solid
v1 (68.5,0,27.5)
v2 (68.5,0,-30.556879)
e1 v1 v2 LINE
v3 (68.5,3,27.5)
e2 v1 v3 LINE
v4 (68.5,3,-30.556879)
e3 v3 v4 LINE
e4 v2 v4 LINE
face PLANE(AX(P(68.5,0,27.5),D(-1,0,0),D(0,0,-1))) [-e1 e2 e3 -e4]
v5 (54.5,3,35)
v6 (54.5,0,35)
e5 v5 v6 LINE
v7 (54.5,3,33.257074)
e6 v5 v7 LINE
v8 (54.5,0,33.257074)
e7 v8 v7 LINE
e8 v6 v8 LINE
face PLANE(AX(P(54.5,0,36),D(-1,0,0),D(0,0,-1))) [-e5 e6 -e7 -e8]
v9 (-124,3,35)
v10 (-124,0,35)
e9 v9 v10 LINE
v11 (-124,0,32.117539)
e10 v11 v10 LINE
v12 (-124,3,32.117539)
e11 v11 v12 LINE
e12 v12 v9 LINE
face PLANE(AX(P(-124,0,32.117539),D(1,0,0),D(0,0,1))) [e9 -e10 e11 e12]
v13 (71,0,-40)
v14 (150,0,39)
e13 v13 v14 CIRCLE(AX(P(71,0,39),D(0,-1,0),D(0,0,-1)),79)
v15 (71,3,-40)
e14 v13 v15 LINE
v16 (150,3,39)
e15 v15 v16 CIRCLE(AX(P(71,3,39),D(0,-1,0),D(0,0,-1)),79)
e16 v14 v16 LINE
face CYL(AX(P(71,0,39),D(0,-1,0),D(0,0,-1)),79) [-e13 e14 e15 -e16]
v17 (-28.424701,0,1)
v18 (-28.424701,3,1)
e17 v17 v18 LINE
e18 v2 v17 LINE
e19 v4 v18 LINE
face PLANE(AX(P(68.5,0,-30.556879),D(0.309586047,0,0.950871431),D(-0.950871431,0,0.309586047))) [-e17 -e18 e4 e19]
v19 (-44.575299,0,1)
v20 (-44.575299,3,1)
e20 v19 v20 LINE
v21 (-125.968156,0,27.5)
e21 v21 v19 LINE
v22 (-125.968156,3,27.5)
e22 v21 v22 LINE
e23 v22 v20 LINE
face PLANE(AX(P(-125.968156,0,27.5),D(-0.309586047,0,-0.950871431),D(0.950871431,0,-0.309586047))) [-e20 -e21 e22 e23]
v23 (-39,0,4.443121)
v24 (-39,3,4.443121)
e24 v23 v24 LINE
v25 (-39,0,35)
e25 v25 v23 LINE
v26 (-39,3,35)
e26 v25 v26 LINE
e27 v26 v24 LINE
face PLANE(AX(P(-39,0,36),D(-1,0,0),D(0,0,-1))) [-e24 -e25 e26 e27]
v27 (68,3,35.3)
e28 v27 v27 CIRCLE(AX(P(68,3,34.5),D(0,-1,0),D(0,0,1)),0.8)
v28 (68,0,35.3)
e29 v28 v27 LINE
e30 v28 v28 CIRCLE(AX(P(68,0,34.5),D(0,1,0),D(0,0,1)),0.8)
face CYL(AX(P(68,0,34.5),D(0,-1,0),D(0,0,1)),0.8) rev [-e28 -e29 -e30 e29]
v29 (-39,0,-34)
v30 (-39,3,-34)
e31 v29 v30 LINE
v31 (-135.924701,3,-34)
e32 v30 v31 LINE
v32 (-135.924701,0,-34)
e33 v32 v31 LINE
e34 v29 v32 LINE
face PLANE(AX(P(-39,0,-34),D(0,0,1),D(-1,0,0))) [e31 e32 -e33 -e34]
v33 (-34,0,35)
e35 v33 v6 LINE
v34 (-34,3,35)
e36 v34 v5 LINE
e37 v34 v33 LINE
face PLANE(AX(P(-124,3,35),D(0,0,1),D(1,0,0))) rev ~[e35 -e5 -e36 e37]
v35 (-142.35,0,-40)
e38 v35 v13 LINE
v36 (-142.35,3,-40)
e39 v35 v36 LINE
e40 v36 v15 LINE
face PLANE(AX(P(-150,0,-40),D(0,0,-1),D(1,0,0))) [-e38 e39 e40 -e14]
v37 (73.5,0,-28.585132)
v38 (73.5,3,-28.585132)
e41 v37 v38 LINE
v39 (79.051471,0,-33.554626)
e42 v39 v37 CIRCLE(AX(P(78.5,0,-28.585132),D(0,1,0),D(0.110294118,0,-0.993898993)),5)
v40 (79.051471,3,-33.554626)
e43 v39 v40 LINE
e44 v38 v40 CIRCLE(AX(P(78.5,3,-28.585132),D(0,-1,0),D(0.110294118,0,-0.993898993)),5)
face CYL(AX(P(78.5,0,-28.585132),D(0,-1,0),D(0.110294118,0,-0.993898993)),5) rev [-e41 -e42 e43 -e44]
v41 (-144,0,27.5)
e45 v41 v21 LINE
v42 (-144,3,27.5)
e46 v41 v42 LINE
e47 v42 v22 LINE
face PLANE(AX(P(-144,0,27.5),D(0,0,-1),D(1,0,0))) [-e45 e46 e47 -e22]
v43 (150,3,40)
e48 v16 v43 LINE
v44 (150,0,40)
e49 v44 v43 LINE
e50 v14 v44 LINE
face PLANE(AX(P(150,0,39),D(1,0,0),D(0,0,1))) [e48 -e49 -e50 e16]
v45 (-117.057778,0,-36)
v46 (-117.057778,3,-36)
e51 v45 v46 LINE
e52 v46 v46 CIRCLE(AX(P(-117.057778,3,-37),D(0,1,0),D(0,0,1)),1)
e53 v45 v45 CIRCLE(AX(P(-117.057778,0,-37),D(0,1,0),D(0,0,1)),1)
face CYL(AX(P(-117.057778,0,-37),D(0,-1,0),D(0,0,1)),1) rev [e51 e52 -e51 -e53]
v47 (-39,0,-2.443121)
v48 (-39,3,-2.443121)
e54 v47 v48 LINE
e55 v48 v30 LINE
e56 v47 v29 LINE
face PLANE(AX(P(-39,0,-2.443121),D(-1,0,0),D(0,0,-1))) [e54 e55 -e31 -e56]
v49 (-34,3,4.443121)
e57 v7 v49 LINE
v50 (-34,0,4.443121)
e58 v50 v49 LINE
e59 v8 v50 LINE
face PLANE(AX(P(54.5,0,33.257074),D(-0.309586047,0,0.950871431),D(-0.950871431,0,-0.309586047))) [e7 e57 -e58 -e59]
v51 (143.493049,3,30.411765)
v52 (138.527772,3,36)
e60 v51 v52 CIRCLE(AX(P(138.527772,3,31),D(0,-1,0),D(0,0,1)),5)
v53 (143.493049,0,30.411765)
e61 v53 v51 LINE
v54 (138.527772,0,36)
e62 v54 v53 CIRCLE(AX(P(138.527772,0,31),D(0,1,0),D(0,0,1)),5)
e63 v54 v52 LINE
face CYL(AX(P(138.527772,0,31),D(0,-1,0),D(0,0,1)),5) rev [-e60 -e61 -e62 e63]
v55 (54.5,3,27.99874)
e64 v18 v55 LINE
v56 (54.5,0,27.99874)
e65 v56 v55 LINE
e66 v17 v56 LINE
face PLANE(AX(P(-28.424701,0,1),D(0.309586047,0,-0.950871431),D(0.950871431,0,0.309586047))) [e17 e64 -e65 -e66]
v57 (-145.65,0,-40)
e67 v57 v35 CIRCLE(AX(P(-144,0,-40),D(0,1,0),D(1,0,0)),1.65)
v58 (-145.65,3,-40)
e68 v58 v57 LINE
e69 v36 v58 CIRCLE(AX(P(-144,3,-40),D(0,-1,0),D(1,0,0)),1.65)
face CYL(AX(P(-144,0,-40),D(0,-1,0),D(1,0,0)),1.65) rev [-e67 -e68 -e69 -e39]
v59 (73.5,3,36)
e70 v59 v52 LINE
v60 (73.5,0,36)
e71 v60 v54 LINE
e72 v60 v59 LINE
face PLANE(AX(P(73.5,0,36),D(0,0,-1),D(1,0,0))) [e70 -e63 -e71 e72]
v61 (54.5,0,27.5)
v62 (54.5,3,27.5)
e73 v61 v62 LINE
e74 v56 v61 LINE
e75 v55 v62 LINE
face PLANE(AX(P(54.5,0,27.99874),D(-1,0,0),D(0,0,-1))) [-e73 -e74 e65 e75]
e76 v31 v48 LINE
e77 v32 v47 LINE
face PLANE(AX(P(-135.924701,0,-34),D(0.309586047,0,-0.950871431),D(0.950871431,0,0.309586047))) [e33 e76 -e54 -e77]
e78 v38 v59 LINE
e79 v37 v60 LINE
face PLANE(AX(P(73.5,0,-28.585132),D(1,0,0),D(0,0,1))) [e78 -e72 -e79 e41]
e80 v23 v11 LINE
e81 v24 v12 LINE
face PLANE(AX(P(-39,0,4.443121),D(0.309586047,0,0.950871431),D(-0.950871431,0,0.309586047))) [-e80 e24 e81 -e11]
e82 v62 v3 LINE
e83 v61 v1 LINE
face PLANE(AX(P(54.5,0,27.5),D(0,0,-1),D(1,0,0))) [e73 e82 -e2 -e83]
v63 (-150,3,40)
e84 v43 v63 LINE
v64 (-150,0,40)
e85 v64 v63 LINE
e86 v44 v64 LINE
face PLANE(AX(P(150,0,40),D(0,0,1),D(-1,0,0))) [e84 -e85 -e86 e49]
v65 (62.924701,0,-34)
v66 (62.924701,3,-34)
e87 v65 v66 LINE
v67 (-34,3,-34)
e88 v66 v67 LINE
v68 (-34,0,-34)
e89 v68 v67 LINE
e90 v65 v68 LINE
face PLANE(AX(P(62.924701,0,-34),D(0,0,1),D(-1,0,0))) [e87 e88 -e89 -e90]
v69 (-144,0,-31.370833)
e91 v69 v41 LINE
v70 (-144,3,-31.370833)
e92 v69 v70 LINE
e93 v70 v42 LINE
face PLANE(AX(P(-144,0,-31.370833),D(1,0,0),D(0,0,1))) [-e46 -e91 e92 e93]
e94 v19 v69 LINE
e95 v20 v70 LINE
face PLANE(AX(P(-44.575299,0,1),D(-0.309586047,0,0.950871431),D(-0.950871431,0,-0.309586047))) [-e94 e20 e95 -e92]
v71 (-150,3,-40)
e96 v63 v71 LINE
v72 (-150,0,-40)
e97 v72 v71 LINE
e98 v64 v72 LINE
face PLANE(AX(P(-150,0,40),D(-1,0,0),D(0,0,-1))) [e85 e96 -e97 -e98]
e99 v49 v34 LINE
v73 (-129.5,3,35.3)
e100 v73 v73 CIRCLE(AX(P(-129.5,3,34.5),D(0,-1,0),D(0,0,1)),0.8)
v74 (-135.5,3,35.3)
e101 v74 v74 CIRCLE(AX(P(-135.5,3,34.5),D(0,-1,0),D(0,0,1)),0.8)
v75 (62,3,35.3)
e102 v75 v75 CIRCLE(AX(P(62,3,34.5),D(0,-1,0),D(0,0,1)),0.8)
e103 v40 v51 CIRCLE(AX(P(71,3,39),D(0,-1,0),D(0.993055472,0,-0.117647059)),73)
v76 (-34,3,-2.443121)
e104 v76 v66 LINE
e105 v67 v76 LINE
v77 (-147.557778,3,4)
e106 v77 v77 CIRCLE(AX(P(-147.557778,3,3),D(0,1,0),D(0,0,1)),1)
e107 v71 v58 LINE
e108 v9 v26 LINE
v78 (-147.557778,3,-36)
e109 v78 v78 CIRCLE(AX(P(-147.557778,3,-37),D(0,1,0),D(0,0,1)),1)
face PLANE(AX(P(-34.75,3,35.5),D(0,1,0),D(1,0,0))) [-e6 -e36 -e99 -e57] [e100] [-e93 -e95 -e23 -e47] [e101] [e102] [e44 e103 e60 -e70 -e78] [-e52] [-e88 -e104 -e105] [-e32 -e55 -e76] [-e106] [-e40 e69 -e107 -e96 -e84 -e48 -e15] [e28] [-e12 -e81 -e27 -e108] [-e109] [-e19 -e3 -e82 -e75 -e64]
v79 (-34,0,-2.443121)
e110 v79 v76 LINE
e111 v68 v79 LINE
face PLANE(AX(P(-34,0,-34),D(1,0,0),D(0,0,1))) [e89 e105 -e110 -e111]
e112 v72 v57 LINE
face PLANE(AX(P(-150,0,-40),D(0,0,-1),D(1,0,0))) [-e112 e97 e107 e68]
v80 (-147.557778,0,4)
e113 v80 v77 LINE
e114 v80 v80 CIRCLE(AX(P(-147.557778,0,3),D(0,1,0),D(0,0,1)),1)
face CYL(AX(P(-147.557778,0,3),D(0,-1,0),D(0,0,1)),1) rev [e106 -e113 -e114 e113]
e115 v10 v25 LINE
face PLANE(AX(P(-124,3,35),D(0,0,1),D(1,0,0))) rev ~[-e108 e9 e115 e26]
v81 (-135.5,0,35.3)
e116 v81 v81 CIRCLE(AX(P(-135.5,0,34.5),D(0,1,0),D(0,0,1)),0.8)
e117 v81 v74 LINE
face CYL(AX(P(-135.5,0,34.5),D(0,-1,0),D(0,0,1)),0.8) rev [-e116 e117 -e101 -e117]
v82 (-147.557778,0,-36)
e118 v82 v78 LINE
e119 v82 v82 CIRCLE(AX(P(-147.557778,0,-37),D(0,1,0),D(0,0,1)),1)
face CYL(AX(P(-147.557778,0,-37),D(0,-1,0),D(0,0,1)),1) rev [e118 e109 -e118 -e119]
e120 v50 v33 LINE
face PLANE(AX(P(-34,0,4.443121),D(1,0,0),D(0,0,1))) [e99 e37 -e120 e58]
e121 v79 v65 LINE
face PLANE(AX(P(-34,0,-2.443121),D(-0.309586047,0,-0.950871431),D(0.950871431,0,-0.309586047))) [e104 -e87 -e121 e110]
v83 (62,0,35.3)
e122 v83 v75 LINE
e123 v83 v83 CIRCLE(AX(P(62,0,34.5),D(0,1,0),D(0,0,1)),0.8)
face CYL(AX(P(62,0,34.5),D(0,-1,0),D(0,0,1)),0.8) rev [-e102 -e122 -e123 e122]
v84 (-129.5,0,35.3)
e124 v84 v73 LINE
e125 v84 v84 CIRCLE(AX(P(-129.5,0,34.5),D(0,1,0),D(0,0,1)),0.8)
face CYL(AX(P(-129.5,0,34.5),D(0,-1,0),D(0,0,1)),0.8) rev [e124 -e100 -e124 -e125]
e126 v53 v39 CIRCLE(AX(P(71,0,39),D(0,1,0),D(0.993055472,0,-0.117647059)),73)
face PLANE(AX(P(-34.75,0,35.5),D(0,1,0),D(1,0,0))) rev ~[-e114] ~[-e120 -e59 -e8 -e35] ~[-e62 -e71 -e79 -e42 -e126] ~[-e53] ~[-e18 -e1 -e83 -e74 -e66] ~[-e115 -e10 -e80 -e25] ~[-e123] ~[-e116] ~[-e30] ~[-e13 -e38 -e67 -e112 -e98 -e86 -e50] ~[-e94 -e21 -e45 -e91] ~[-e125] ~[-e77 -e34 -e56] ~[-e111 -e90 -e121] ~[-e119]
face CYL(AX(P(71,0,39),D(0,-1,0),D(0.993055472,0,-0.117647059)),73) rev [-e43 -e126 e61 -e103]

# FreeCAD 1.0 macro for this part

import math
import FreeCAD as App
import Part
import Sketcher


def add_polygon(sketch, points):
    """Adds a closed chain of lines whose ends are joined by coincident constraints."""
    first, n = sketch.GeometryCount, len(points)
    for a, b in zip(points, points[1:] + points[:1]):
        sketch.addGeometry(Part.LineSegment(App.Vector(*a, 0), App.Vector(*b, 0)), False)
    for i in range(n):
        sketch.addConstraint(Sketcher.Constraint("Coincident", first + i, 2, first + (i + 1) % n, 1))

doc = App.newDocument("Part")
body = doc.addObject("PartDesign::Body", "Body")

# Sketch on XZ plane
sketch1 = doc.addObject("Sketcher::SketchObject", "Sketch")
body.addObject(sketch1)
sketch1.AttachmentSupport = (doc.XZ_Plane, [""])
sketch1.MapMode = "FlatFace"
sketch1.addGeometry([
    Part.LineSegment(App.Vector(71, -40, 0), App.Vector(-150, -40, 0)),  # 0
    Part.LineSegment(App.Vector(-150, -40, 0), App.Vector(-150, 40, 0)),  # 1
    Part.LineSegment(App.Vector(-150, 40, 0), App.Vector(150, 40, 0)),  # 2
    Part.LineSegment(App.Vector(150, 40, 0), App.Vector(150, 39, 0)),  # 3
    Part.ArcOfCircle(Part.Circle(App.Vector(71, 39, 0), App.Vector(0, 0, 1), 79), math.radians(-90), math.radians(0)),  # 4
    Part.Circle(App.Vector(-147.6, 3, 0), App.Vector(0, 0, 1), 1),  # 5
    Part.Circle(App.Vector(-117.1, -37, 0), App.Vector(0, 0, 1), 1),  # 6
    Part.Circle(App.Vector(-147.6, -37, 0), App.Vector(0, 0, 1), 1),  # 7
], False)
sketch1.addConstraint([
    Sketcher.Constraint("Coincident", 0, 2, 1, 1),
    Sketcher.Constraint("Coincident", 1, 2, 2, 1),
    Sketcher.Constraint("Coincident", 2, 2, 3, 1),
    Sketcher.Constraint("Tangent", 3, 2, 4, 2),
    Sketcher.Constraint("Tangent", 4, 1, 0, 1),
    Sketcher.Constraint("Horizontal", 0),
    Sketcher.Constraint("Vertical", 1),
    Sketcher.Constraint("Horizontal", 2),
    Sketcher.Constraint("Vertical", 3),
    Sketcher.Constraint("Equal", 5, 6),
    Sketcher.Constraint("Equal", 6, 7),
    Sketcher.Constraint("Symmetric", 0, 2, 2, 2, -1, 1),
    Sketcher.Constraint("Horizontal", 6, 3, 7, 3),
    Sketcher.Constraint("Vertical", 5, 3, 7, 3),
    Sketcher.Constraint("Diameter", 5, 2.0),
    Sketcher.Constraint("Radius", 4, 79.0),
    Sketcher.Constraint("DistanceX", 0, 2, 0, 1, 221.0),
    Sketcher.Constraint("DistanceY", 1, 1, 1, 2, 80.0),
    Sketcher.Constraint("DistanceY", -1, 1, 5, 3, 3.0),
    Sketcher.Constraint("DistanceY", 6, 3, -1, 1, 37.0),
    Sketcher.Constraint("DistanceX", 5, 3, 6, 3, 30.5),
    Sketcher.Constraint("DistanceX", 5, 3, -1, 1, 147.557778),
])
pad1 = doc.addObject("PartDesign::Pad", "Pad")
body.addObject(pad1)
pad1.Profile = sketch1
pad1.Length = 3
pad1.Reversed = True

# Sketch on XZ plane
sketch2 = doc.addObject("Sketcher::SketchObject", "Sketch001")
body.addObject(sketch2)
sketch2.AttachmentSupport = (doc.XZ_Plane, [""])
sketch2.MapMode = "FlatFace"
add_polygon(sketch2, [(-34, -2.44), (62.92, -34), (-34, -34)])  # lines 0-2
add_polygon(sketch2, [(68.5, 27.5), (68.5, -30.56), (-28.42, 1), (54.5, 28), (54.5, 27.5)])  # lines 3-7
add_polygon(sketch2, [(-39, -2.44), (-39, -34), (-135.92, -34)])  # lines 8-10
sketch2.addGeometry(Part.Circle(App.Vector(68, 34.5, 0), App.Vector(0, 0, 1), 0.8), False)  # 11
add_polygon(sketch2, [(54.5, 36), (54.5, 33.26), (-34, 4.44), (-34, 36)])  # lines 12-15
add_polygon(sketch2, [(-125.97, 27.5), (-44.58, 1), (-144, -31.37), (-144, 27.5)])  # lines 16-19
add_polygon(sketch2, [(-39, 36), (-39, 4.44), (-124, 32.12), (-124, 36)])  # lines 20-23
sketch2.addGeometry(Part.LineSegment(App.Vector(73.5, -28.59, 0), App.Vector(73.5, 36, 0)), False)  # 24
sketch2.addGeometry(Part.LineSegment(App.Vector(73.5, 36, 0), App.Vector(138.53, 36, 0)), False)  # 25
sketch2.addGeometry(Part.ArcOfCircle(Part.Circle(App.Vector(138.53, 31, 0), App.Vector(0, 0, 1), 5), math.radians(-7), math.radians(90)), False)  # 26
sketch2.addGeometry(Part.ArcOfCircle(Part.Circle(App.Vector(71, 39, 0), App.Vector(0, 0, 1), 73), math.radians(-84), math.radians(-7)), False)  # 27
sketch2.addGeometry(Part.ArcOfCircle(Part.Circle(App.Vector(78.5, -28.59, 0), App.Vector(0, 0, 1), 5), math.radians(180), math.radians(276)), False)  # 28
sketch2.addGeometry(Part.Circle(App.Vector(-129.5, 34.5, 0), App.Vector(0, 0, 1), 0.8), False)  # 29
sketch2.addGeometry(Part.Circle(App.Vector(-135.5, 34.5, 0), App.Vector(0, 0, 1), 0.8), False)  # 30
sketch2.addGeometry(Part.Circle(App.Vector(62, 34.5, 0), App.Vector(0, 0, 1), 0.8), False)  # 31
sketch2.addGeometry(Part.Circle(App.Vector(-144, -40, 0), App.Vector(0, 0, 1), 1.65), False)  # 32
sketch2.addConstraint([
    Sketcher.Constraint("Coincident", 24, 2, 25, 1),
    Sketcher.Constraint("Tangent", 25, 2, 26, 2),
    Sketcher.Constraint("Tangent", 26, 1, 27, 2),
    Sketcher.Constraint("Tangent", 27, 1, 28, 2),
    Sketcher.Constraint("Tangent", 28, 1, 24, 1),
    Sketcher.Constraint("Horizontal", 1),
    Sketcher.Constraint("Vertical", 2),
    Sketcher.Constraint("Vertical", 3),
    Sketcher.Constraint("Vertical", 6),
    Sketcher.Constraint("Horizontal", 7),
    Sketcher.Constraint("Vertical", 8),
    Sketcher.Constraint("Horizontal", 9),
    Sketcher.Constraint("Vertical", 12),
    Sketcher.Constraint("Vertical", 14),
    Sketcher.Constraint("Horizontal", 15),
    Sketcher.Constraint("Vertical", 18),
    Sketcher.Constraint("Horizontal", 19),
    Sketcher.Constraint("Vertical", 20),
    Sketcher.Constraint("Vertical", 22),
    Sketcher.Constraint("Horizontal", 23),
    Sketcher.Constraint("Vertical", 24),
    Sketcher.Constraint("Horizontal", 25),
    Sketcher.Constraint("Equal", 26, 28),
    Sketcher.Constraint("Equal", 11, 29),
    Sketcher.Constraint("Equal", 29, 30),
    Sketcher.Constraint("Equal", 30, 31),
    Sketcher.Constraint("Parallel", 0, 4),
    Sketcher.Constraint("Parallel", 5, 10),
    Sketcher.Constraint("Parallel", 10, 13),
    Sketcher.Constraint("Parallel", 4, 16),
    Sketcher.Constraint("Parallel", 13, 17),
    Sketcher.Constraint("Parallel", 16, 21),
    Sketcher.Constraint("Horizontal", 11, 3, 29, 3),
    Sketcher.Constraint("Horizontal", 29, 3, 30, 3),
    Sketcher.Constraint("Horizontal", 30, 3, 31, 3),
    Sketcher.Constraint("Horizontal", 1, 2, 8, 2),
    Sketcher.Constraint("Horizontal", 2, 2, 10, 2),
    Sketcher.Constraint("Horizontal", 4, 2, 16, 2),
    Sketcher.Constraint("Horizontal", 7, 2, 18, 2),
    Sketcher.Constraint("Horizontal", 13, 2, 20, 2),
    Sketcher.Constraint("Horizontal", 15, 2, 22, 2),
    Sketcher.Constraint("Horizontal", 23, 2, 24, 2),
    Sketcher.Constraint("Vertical", 6, 2, 12, 2),
    Sketcher.Constraint("Vertical", 2, 2, 13, 2),
    Sketcher.Constraint("Vertical", 32, 3, 17, 2),
    Sketcher.Constraint("Vertical", 10, 2, 20, 2),
    Sketcher.Constraint("Equal", 1, 9),
    Sketcher.Constraint("Equal", 8, 14),
    Sketcher.Constraint("Equal", 0, 4),
    Sketcher.Constraint("Radius", 26, 5.0),
    Sketcher.Constraint("Radius", 27, 73.0),
    Sketcher.Constraint("Diameter", 11, 1.6),
    Sketcher.Constraint("Diameter", 32, 3.3),
    Sketcher.Constraint("DistanceX", 7, 1, 7, 2, 14.0),
    Sketcher.Constraint("DistanceX", 23, 1, 23, 2, 85.0),
    Sketcher.Constraint("DistanceX", 15, 1, 15, 2, 88.5),
    Sketcher.Constraint("DistanceX", -1, 1, 11, 3, 68.0),
    Sketcher.Constraint("DistanceY", -1, 1, 26, 3, 31.0),
    Sketcher.Constraint("DistanceX", -1, 1, 27, 3, 71.0),
    Sketcher.Constraint("DistanceY", -1, 1, 27, 3, 39.0),
    Sketcher.Constraint("DistanceX", -1, 1, 31, 3, 62.0),
    Sketcher.Constraint("DistanceX", 32, 3, -1, 1, 144.0),
    Sketcher.Constraint("DistanceY", 32, 3, -1, 1, 40.0),
    Sketcher.Constraint("DistanceY", 0, 2, -1, 1, 34.0),
    Sketcher.Constraint("DistanceX", 1, 2, -1, 1, 34.0),
    Sketcher.Constraint("DistanceY", -1, 1, 4, 2, 1.0),
    Sketcher.Constraint("DistanceX", 8, 2, -1, 1, 39.0),
    Sketcher.Constraint("DistanceX", 29, 3, 28, 3, 208.0),
    Sketcher.Constraint("DistanceX", 30, 3, 29, 3, 6.0),
    Sketcher.Constraint("DistanceX", 3, 2, 28, 3, 10.0),
    Sketcher.Constraint("DistanceY", 6, 2, 31, 3, 7.0),
    Sketcher.Constraint("DistanceY", -1, 1, 11, 3, 34.5),
    Sketcher.Constraint("DistanceX", 1, 2, 1, 1, 96.924701),
    Sketcher.Constraint("Distance", 0, 101.932498),
    Sketcher.Constraint("DistanceX", 16, 2, -1, 1, 44.575299),
])
pocket1 = doc.addObject("PartDesign::Pocket", "Pocket")
body.addObject(pocket1)
pocket1.Profile = sketch2
pocket1.Length = 18

# Sketch on XZ plane
sketch3 = doc.addObject("Sketcher::SketchObject", "Sketch002")
body.addObject(sketch3)
sketch3.AttachmentSupport = (doc.XZ_Plane, [""])
sketch3.MapMode = "FlatFace"
sketch3.AttachmentOffset = App.Placement(App.Vector(0, 0, -3), App.Rotation())
add_polygon(sketch3, [(-124, 35), (-124, 36), (54.5, 36), (54.5, 35)])  # lines 0-3
sketch3.addConstraint([
    Sketcher.Constraint("Vertical", 0),
    Sketcher.Constraint("Horizontal", 1),
    Sketcher.Constraint("Vertical", 2),
    Sketcher.Constraint("Horizontal", 3),
    Sketcher.Constraint("DistanceY", 0, 1, 0, 2, 1.0),
    Sketcher.Constraint("DistanceX", 1, 1, 1, 2, 178.5),
    Sketcher.Constraint("DistanceX", 0, 2, -1, 1, 124.0),
    Sketcher.Constraint("DistanceY", -1, 1, 0, 2, 36.0),
])
pad2 = doc.addObject("PartDesign::Pad", "Pad001")
body.addObject(pad2)
pad2.Profile = sketch3
pad2.Type = "UpToLast"

doc.recompute()
